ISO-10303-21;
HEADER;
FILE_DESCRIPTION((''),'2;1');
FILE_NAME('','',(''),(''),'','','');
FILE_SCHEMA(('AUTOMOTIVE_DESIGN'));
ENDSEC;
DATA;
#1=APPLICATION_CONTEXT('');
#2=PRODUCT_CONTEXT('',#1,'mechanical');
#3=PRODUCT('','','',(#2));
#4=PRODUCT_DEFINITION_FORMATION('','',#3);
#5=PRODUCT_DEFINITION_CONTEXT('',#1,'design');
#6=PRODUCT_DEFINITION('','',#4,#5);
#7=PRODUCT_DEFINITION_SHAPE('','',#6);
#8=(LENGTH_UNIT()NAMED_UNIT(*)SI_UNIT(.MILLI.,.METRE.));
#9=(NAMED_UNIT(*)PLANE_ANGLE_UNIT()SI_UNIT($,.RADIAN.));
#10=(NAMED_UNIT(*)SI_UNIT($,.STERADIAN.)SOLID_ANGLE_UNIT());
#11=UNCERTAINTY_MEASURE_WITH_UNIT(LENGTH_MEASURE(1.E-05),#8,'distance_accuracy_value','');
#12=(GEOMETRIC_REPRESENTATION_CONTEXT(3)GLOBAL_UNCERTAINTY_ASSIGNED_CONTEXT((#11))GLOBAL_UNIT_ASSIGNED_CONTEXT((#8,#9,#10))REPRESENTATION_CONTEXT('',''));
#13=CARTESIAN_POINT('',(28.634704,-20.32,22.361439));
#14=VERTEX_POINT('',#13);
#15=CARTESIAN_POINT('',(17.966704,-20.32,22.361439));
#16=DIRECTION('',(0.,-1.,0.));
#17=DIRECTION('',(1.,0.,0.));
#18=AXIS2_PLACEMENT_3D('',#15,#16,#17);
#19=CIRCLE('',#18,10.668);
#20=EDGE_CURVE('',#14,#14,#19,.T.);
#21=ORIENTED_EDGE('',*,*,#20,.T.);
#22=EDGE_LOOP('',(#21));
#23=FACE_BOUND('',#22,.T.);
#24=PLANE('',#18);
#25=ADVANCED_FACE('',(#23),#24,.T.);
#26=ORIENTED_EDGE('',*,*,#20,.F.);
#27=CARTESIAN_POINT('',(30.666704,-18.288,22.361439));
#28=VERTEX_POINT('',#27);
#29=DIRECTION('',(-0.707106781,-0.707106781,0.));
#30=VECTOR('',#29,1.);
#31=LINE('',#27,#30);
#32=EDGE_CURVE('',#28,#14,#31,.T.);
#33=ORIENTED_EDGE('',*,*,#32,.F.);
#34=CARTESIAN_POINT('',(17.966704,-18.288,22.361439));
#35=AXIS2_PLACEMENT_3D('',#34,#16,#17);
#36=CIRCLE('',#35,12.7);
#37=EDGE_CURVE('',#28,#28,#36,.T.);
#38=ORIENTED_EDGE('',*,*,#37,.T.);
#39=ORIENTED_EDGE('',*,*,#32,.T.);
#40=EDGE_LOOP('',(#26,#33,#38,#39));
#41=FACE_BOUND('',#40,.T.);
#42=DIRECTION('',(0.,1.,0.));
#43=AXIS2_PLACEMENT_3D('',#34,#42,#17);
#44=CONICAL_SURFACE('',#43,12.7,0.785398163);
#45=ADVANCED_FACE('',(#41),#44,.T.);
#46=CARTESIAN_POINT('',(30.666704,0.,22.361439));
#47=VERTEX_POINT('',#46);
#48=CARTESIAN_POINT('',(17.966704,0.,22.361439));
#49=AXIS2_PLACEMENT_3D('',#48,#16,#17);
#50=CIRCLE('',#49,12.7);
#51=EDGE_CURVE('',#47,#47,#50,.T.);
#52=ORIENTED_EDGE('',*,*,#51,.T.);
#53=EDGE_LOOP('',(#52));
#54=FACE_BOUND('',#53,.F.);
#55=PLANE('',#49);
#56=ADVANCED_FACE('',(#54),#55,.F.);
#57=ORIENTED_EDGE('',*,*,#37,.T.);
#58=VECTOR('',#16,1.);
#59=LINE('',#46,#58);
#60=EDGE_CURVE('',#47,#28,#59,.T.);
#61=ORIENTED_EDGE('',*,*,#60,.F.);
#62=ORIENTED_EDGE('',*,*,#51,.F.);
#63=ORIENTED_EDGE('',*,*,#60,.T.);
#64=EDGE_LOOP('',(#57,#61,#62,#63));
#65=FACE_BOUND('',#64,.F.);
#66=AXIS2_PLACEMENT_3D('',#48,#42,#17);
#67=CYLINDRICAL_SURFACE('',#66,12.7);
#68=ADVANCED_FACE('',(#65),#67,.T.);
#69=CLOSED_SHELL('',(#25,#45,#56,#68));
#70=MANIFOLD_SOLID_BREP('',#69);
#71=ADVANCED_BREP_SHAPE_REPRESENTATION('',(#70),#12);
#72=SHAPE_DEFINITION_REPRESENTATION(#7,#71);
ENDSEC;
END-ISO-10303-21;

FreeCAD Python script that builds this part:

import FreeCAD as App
import Part
import Sketcher
Q = App.Units.Quantity


def edges_at(feature, points):
    """Names of the edges that pass closest to the given points."""
    edges = feature.Shape.Edges
    near = lambda p: min(range(len(edges)), key=lambda i: edges[i].distToShape(Part.Vertex(*p))[0])
    return sorted({f"Edge{near(p) + 1}" for p in points})

doc = App.newDocument("Part")
body = doc.addObject("PartDesign::Body", "Body")

sketch1 = body.newObject("Sketcher::SketchObject", "Sketch")
sketch1.AttachmentSupport = (doc.getObject("XZ_Plane"), [""])
sketch1.MapMode = "FlatFace"
sketch1.addGeometry(Part.Circle(App.Vector(18, 22, 0), App.Vector(0, 0, 1), 13), False)
sketch1.addConstraint(Sketcher.Constraint("Diameter", 0, Q("1 in")))
sketch1.addConstraint(Sketcher.Constraint("DistanceY", -1, 1, 0, 3, Q("22.361439 mm")))
sketch1.addConstraint(Sketcher.Constraint("DistanceX", -1, 1, 0, 3, Q("17.966704 mm")))
pad1 = body.newObject("PartDesign::Pad", "Pad")
pad1.Profile = sketch1
pad1.Length = Q("0.8 in")
doc.recompute()

chamfer = body.newObject("PartDesign::Chamfer", "Chamfer")
chamfer.Base = (pad1, edges_at(pad1, [(5.267, -20.32, 22.361)]))
chamfer.Size = Q("0.08 in")

doc.recompute()
